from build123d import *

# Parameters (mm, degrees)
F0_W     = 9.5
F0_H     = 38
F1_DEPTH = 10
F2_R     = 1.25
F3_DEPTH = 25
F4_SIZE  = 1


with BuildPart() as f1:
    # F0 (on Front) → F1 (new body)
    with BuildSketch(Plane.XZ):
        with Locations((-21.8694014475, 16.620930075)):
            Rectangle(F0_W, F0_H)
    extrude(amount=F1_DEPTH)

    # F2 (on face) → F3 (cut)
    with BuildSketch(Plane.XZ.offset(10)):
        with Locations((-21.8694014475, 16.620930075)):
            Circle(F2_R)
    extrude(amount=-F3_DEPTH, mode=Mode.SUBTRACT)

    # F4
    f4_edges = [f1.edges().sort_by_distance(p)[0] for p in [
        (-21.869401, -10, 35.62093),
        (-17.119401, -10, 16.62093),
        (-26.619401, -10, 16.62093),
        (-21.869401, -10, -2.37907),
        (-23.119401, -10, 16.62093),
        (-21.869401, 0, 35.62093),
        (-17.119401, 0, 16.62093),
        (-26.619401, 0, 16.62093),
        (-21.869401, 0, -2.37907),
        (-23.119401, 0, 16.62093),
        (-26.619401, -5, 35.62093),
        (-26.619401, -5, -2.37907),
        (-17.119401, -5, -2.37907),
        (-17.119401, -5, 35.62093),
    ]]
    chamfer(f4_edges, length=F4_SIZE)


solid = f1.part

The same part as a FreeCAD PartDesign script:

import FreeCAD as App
import Part
import Sketcher
from FreeCAD import Vector


def add_polygon(sketch, points):
    """Adds a closed chain of lines whose ends are joined by coincident constraints."""
    first, n = sketch.GeometryCount, len(points)
    for a, b in zip(points, points[1:] + points[:1]):
        sketch.addGeometry(Part.LineSegment(App.Vector(*a, 0), App.Vector(*b, 0)), False)
    for i in range(n):
        sketch.addConstraint(Sketcher.Constraint("Coincident", first + i, 2, first + (i + 1) % n, 1))

doc = App.newDocument("Part")
body = doc.addObject("PartDesign::Body", "Body")

sketch1 = doc.addObject("Sketcher::SketchObject", "Sketch")
body.addObject(sketch1)
sketch1.AttachmentSupport = (doc.XZ_Plane, [""])
sketch1.MapMode = "FlatFace"
add_polygon(sketch1, [(-27, 36), (-27, -2), (-17, -2), (-17, 36)])
sketch1.addConstraint(Sketcher.Constraint("Vertical", 0))
sketch1.addConstraint(Sketcher.Constraint("Horizontal", 1))
sketch1.addConstraint(Sketcher.Constraint("Vertical", 2))
sketch1.addConstraint(Sketcher.Constraint("Horizontal", 3))
sketch1.addConstraint(Sketcher.Constraint("DistanceY", 0, 2, 0, 1, 38.0))
sketch1.addConstraint(Sketcher.Constraint("DistanceX", 1, 1, 1, 2, 9.5))
sketch1.addConstraint(Sketcher.Constraint("DistanceX", 0, 2, -1, 1, 26.619401))
sketch1.addConstraint(Sketcher.Constraint("DistanceY", 0, 2, -1, 1, 2.37907))
pad1 = doc.addObject("PartDesign::Pad", "Pad")
body.addObject(pad1)
pad1.Profile = sketch1
pad1.Length = 10

sketch2 = doc.addObject("Sketcher::SketchObject", "Sketch001")
body.addObject(sketch2)
sketch2.AttachmentSupport = (doc.XZ_Plane, [""])
sketch2.MapMode = "FlatFace"
sketch2.AttachmentOffset = App.Placement(Vector(0, 0, 10), App.Rotation())
sketch2.addGeometry(Part.Circle(Vector(-21.9, 16.6, 0), Vector(0, 0, 1), 1.2), False)
sketch2.addConstraint(Sketcher.Constraint("Diameter", 0, 2.5))
sketch2.addConstraint(Sketcher.Constraint("DistanceX", 0, 3, -1, 1, 21.869401))
sketch2.addConstraint(Sketcher.Constraint("DistanceY", -1, 1, 0, 3, 16.62093))
pocket1 = doc.addObject("PartDesign::Pocket", "Pocket")
body.addObject(pocket1)
pocket1.Profile = sketch2
pocket1.Length = 25
doc.recompute()

chamfer = doc.addObject("PartDesign::Chamfer", "Chamfer")
body.addObject(chamfer)
chamfer.Base = (pocket1, ["Edge1"])
chamfer.UseAllEdges = True
chamfer.Size = 1

doc.recompute()
